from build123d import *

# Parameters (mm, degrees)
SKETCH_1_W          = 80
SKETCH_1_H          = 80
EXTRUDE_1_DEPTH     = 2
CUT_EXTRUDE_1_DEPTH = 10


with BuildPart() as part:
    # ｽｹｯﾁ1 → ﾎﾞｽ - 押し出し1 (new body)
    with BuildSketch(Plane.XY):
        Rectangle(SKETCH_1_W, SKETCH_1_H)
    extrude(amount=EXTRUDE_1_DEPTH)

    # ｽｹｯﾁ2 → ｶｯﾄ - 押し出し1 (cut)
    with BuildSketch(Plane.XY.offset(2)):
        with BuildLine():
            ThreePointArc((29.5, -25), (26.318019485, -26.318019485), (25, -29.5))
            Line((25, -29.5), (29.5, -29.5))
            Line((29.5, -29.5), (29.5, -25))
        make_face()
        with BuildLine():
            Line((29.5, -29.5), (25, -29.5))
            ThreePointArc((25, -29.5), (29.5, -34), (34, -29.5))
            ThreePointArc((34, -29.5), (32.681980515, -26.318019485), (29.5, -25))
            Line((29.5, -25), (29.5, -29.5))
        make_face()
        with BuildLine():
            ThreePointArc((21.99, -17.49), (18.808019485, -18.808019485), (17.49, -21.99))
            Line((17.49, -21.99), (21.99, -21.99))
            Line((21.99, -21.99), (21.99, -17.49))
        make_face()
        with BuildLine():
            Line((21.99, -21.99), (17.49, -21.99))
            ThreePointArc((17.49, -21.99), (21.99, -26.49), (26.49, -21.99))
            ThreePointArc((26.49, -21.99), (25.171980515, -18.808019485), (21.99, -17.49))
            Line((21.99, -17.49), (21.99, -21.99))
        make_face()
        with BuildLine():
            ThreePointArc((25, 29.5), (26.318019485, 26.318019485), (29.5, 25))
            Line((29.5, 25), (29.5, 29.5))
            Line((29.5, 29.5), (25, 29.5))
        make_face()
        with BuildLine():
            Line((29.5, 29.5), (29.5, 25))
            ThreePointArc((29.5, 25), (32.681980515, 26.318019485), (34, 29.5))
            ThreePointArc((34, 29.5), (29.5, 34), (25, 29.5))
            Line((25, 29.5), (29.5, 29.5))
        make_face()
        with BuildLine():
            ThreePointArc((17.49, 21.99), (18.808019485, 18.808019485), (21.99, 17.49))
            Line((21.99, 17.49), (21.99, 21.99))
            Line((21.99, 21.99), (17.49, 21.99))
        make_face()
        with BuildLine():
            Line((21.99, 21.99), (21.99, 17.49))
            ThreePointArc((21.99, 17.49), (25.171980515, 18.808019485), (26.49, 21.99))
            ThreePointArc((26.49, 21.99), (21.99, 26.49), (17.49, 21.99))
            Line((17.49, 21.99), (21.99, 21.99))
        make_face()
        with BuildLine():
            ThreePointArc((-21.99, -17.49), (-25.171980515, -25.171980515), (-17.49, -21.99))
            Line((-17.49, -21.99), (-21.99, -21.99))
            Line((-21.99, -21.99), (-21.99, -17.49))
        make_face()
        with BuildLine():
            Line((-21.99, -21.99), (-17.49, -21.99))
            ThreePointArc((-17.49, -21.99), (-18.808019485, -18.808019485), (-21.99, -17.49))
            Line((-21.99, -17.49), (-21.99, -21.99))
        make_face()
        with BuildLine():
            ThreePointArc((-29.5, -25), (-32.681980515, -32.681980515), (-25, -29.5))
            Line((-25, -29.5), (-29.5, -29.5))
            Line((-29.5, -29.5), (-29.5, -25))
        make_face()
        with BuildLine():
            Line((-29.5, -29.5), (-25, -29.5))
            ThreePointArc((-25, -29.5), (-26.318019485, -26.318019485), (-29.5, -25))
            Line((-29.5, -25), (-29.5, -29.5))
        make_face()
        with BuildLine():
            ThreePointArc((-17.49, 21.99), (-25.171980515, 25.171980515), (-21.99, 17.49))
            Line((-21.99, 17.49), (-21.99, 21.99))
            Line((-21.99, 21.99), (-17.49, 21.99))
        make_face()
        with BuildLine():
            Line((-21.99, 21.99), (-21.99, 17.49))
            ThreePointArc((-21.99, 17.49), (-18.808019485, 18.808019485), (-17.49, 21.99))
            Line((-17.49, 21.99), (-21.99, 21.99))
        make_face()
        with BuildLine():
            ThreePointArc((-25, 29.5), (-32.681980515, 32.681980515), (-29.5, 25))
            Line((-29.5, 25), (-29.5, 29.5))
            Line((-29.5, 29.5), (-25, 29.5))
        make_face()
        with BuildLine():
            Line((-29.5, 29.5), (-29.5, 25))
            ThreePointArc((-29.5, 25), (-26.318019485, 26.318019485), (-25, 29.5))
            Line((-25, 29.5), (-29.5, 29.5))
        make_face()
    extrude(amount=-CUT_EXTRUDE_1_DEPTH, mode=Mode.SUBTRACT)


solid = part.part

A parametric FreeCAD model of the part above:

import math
import FreeCAD as App
import Part
import Sketcher
Q = App.Units.Quantity


def add_polygon(sketch, points):
    """Adds a closed chain of lines whose ends are joined by coincident constraints."""
    first, n = sketch.GeometryCount, len(points)
    for a, b in zip(points, points[1:] + points[:1]):
        sketch.addGeometry(Part.LineSegment(App.Vector(*a, 0), App.Vector(*b, 0)), False)
    for i in range(n):
        sketch.addConstraint(Sketcher.Constraint("Coincident", first + i, 2, first + (i + 1) % n, 1))

doc = App.newDocument("Part")
params = doc.addObject("Spreadsheet::Sheet", "Params")
for row, (alias, value) in enumerate([
    ("sketch1_width", "80 mm"),
    ("pad1_length", "2 mm"),
    ("sketch2_radius", "4.5 mm"),
    ("pocket1_length", "10 mm"),
], start=1):
    params.set(f"A{row}", alias)
    params.set(f"B{row}", "=" + value)
    params.setAlias(f"B{row}", alias)

body = doc.addObject("PartDesign::Body", "Body")

sketch1 = body.newObject("Sketcher::SketchObject", "Sketch")
sketch1.AttachmentSupport = (doc.getObject("XY_Plane"), [""])
sketch1.MapMode = "FlatFace"
add_polygon(sketch1, [(-40, 40), (-40, -40), (40, -40), (40, 40)])
sketch1.addConstraint([
    Sketcher.Constraint("Vertical", 0),
    Sketcher.Constraint("Horizontal", 1),
    Sketcher.Constraint("Vertical", 2),
    Sketcher.Constraint("Horizontal", 3),
    Sketcher.Constraint("Symmetric", 0, 2, 2, 2, -1, 1),
    Sketcher.Constraint("Equal", 3, 0),
    Sketcher.Constraint("DistanceX", 1, 1, 1, 2, Q("80 mm")),
])
sketch1.setExpression("Constraints[10]", "Params.sketch1_width")
pad1 = body.newObject("PartDesign::Pad", "Pad")
pad1.Profile = sketch1
pad1.setExpression("Length", "Params.pad1_length")

sketch2 = body.newObject("Sketcher::SketchObject", "Sketch001")
sketch2.AttachmentSupport = (doc.getObject("XY_Plane"), [""])
sketch2.MapMode = "FlatFace"
sketch2.AttachmentOffset = App.Placement(App.Vector(0, 0, 2), App.Rotation())
sketch2.addGeometry([
    Part.ArcOfCircle(Part.Circle(App.Vector(29.5, -29.5, 0), App.Vector(0, 0, 1), 4.5), math.radians(90), math.radians(180)),
    Part.ArcOfCircle(Part.Circle(App.Vector(29.5, -29.5, 0), App.Vector(0, 0, 1), 4.5), math.radians(180), math.radians(360)),
    Part.ArcOfCircle(Part.Circle(App.Vector(29.5, -29.5, 0), App.Vector(0, 0, 1), 4.5), math.radians(0), math.radians(90)),
    Part.ArcOfCircle(Part.Circle(App.Vector(21.99, -21.99, 0), App.Vector(0, 0, 1), 4.5), math.radians(90), math.radians(180)),
    Part.ArcOfCircle(Part.Circle(App.Vector(21.99, -21.99, 0), App.Vector(0, 0, 1), 4.5), math.radians(180), math.radians(360)),
    Part.ArcOfCircle(Part.Circle(App.Vector(21.99, -21.99, 0), App.Vector(0, 0, 1), 4.5), math.radians(0), math.radians(90)),
    Part.ArcOfCircle(Part.Circle(App.Vector(29.5, 29.5, 0), App.Vector(0, 0, 1), 4.5), math.radians(-180), math.radians(-90)),
    Part.ArcOfCircle(Part.Circle(App.Vector(29.5, 29.5, 0), App.Vector(0, 0, 1), 4.5), math.radians(-90), math.radians(0)),
    Part.ArcOfCircle(Part.Circle(App.Vector(29.5, 29.5, 0), App.Vector(0, 0, 1), 4.5), math.radians(0), math.radians(180)),
    Part.ArcOfCircle(Part.Circle(App.Vector(21.99, 21.99, 0), App.Vector(0, 0, 1), 4.5), math.radians(-180), math.radians(-90)),
    Part.ArcOfCircle(Part.Circle(App.Vector(21.99, 21.99, 0), App.Vector(0, 0, 1), 4.5), math.radians(-90), math.radians(0)),
    Part.ArcOfCircle(Part.Circle(App.Vector(21.99, 21.99, 0), App.Vector(0, 0, 1), 4.5), math.radians(0), math.radians(180)),
    Part.ArcOfCircle(Part.Circle(App.Vector(-21.99, -21.99, 0), App.Vector(0, 0, 1), 4.5), math.radians(90), math.radians(360)),
    Part.ArcOfCircle(Part.Circle(App.Vector(-21.99, -21.99, 0), App.Vector(0, 0, 1), 4.5), math.radians(0), math.radians(90)),
    Part.ArcOfCircle(Part.Circle(App.Vector(-29.5, -29.5, 0), App.Vector(0, 0, 1), 4.5), math.radians(90), math.radians(360)),
    Part.ArcOfCircle(Part.Circle(App.Vector(-29.5, -29.5, 0), App.Vector(0, 0, 1), 4.5), math.radians(0), math.radians(90)),
    Part.ArcOfCircle(Part.Circle(App.Vector(-21.99, 21.99, 0), App.Vector(0, 0, 1), 4.5), math.radians(0), math.radians(270)),
    Part.ArcOfCircle(Part.Circle(App.Vector(-21.99, 21.99, 0), App.Vector(0, 0, 1), 4.5), math.radians(-90), math.radians(0)),
    Part.ArcOfCircle(Part.Circle(App.Vector(-29.5, 29.5, 0), App.Vector(0, 0, 1), 4.5), math.radians(0), math.radians(270)),
    Part.ArcOfCircle(Part.Circle(App.Vector(-29.5, 29.5, 0), App.Vector(0, 0, 1), 4.5), math.radians(-90), math.radians(0)),
], False)
sketch2.addConstraint([
    Sketcher.Constraint("Tangent", 0, 2, 1, 1),
    Sketcher.Constraint("Tangent", 1, 2, 2, 1),
    Sketcher.Constraint("Tangent", 2, 2, 0, 1),
    Sketcher.Constraint("Tangent", 3, 2, 4, 1),
    Sketcher.Constraint("Tangent", 4, 2, 5, 1),
    Sketcher.Constraint("Tangent", 5, 2, 3, 1),
    Sketcher.Constraint("Tangent", 6, 2, 7, 1),
    Sketcher.Constraint("Tangent", 7, 2, 8, 1),
    Sketcher.Constraint("Tangent", 8, 2, 6, 1),
    Sketcher.Constraint("Tangent", 9, 2, 10, 1),
    Sketcher.Constraint("Tangent", 10, 2, 11, 1),
    Sketcher.Constraint("Tangent", 11, 2, 9, 1),
    Sketcher.Constraint("Tangent", 12, 1, 13, 2),
    Sketcher.Constraint("Coincident", 13, 1, 12, 2),
    Sketcher.Constraint("Tangent", 14, 1, 15, 2),
    Sketcher.Constraint("Coincident", 15, 1, 14, 2),
    Sketcher.Constraint("Tangent", 16, 1, 17, 2),
    Sketcher.Constraint("Coincident", 17, 1, 16, 2),
    Sketcher.Constraint("Tangent", 18, 1, 19, 2),
    Sketcher.Constraint("Coincident", 19, 1, 18, 2),
    Sketcher.Constraint("Equal", 2, 3),
    Sketcher.Constraint("Equal", 5, 6),
    Sketcher.Constraint("Equal", 8, 9),
    Sketcher.Constraint("Equal", 11, 12),
    Sketcher.Constraint("Equal", 13, 14),
    Sketcher.Constraint("Equal", 15, 16),
    Sketcher.Constraint("Equal", 17, 18),
    Sketcher.Constraint("Symmetric", 9, 3, 12, 3, -1, 1),
    Sketcher.Constraint("Symmetric", 6, 3, 14, 3, -1, 1),
    Sketcher.Constraint("Symmetric", 3, 3, 16, 3, -1, 1),
    Sketcher.Constraint("Symmetric", 0, 3, 18, 3, -1, 1),
    Sketcher.Constraint("Symmetric", 3, 3, 12, 3, -2),
    Sketcher.Constraint("Symmetric", 0, 3, 14, 3, -2),
    Sketcher.Constraint("Horizontal", 15, 3, 0, 2),
    Sketcher.Constraint("Horizontal", 0, 2, 1, 2),
    Sketcher.Constraint("Horizontal", 13, 3, 3, 2),
    Sketcher.Constraint("Horizontal", 3, 2, 4, 2),
    Sketcher.Constraint("Horizontal", 19, 3, 7, 2),
    Sketcher.Constraint("Horizontal", 7, 2, 8, 2),
    Sketcher.Constraint("Horizontal", 17, 3, 10, 2),
    Sketcher.Constraint("Horizontal", 10, 2, 11, 2),
    Sketcher.Constraint("Horizontal", 4, 2, 13, 1),
    Sketcher.Constraint("Horizontal", 1, 2, 15, 1),
    Sketcher.Constraint("Horizontal", 11, 2, 16, 1),
    Sketcher.Constraint("Horizontal", 8, 2, 18, 1),
    Sketcher.Constraint("Vertical", 8, 3, 2, 2),
    Sketcher.Constraint("Vertical", 11, 3, 5, 2),
    Sketcher.Constraint("Vertical", 2, 2, 6, 2),
    Sketcher.Constraint("Vertical", 5, 2, 9, 2),
    Sketcher.Constraint("Vertical", 17, 3, 12, 1),
    Sketcher.Constraint("Vertical", 19, 3, 14, 1),
    Sketcher.Constraint("Vertical", 12, 1, 17, 1),
    Sketcher.Constraint("Vertical", 14, 1, 19, 1),
    Sketcher.Constraint("Radius", 0, Q("4.5 mm")),
    Sketcher.Constraint("DistanceX", -1, 1, 0, 2, Q("25 mm")),
    Sketcher.Constraint("DistanceY", 2, 2, -1, 1, Q("25 mm")),
    Sketcher.Constraint("DistanceX", -1, 1, 3, 3, Q("21.99 mm")),
    Sketcher.Constraint("DistanceY", 3, 3, -1, 1, Q("21.99 mm")),
])
sketch2.setExpression("Constraints[53]", "Params.sketch2_radius")
pocket1 = body.newObject("PartDesign::Pocket", "Pocket")
pocket1.Profile = sketch2
pocket1.setExpression("Length", "Params.pocket1_length")

doc.recompute()
